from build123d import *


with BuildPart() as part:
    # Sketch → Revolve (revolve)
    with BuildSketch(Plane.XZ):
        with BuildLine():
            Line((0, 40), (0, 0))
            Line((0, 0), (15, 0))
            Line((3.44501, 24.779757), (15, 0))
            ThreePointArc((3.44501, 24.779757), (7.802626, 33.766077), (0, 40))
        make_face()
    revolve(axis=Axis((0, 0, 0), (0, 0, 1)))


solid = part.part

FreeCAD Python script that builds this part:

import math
import FreeCAD as App
import Part
import Sketcher
from FreeCAD import Vector
Q = App.Units.Quantity

doc = App.newDocument("Part")
body = doc.addObject("PartDesign::Body", "Body")

sketch1 = doc.addObject("Sketcher::SketchObject", "Sketch")
body.addObject(sketch1)
sketch1.AttachmentSupport = (doc.XZ_Plane, [""])
sketch1.MapMode = "FlatFace"
sketch1.addGeometry([
    Part.LineSegment(Vector(0, 40, 0), Vector(0, 0, 0)),
    Part.LineSegment(Vector(0, 0, 0), Vector(15, 0, 0)),
    Part.LineSegment(Vector(15, 0, 0), Vector(3.44501, 24.779757, 0)),
    Part.ArcOfCircle(Part.Circle(Vector(0, 32, 0), Vector(0, 0, 1), 8), math.radians(-64.49269), math.radians(90)),
], False)
sketch1.addConstraint([
    Sketcher.Constraint("Coincident", 0, 2, 1, 1),
    Sketcher.Constraint("Coincident", 1, 2, 2, 1),
    Sketcher.Constraint("Coincident", 2, 2, 3, 1),
    Sketcher.Constraint("Coincident", 3, 2, 0, 1),
    Sketcher.Constraint("Vertical", 0),
    Sketcher.Constraint("Horizontal", 1),
    Sketcher.Constraint("Coincident", 0, 2, -1, 1),
    Sketcher.Constraint("PointOnObject", 3, 3, -2),
    Sketcher.Constraint("Radius", 3, Q("8 mm")),
    Sketcher.Constraint("DistanceX", 1, 1, 1, 2, Q("15 mm")),
    Sketcher.Constraint("DistanceY", 0, 2, 0, 1, Q("40 mm")),
    Sketcher.Constraint("Angle", 2, Q("114.999999 deg")),
])
revolution = doc.addObject("PartDesign::Revolution", "Revolution")
body.addObject(revolution)
revolution.Profile = sketch1
revolution.ReferenceAxis = (sketch1, ["V_Axis"])
revolution.Angle = 360

doc.recompute()
